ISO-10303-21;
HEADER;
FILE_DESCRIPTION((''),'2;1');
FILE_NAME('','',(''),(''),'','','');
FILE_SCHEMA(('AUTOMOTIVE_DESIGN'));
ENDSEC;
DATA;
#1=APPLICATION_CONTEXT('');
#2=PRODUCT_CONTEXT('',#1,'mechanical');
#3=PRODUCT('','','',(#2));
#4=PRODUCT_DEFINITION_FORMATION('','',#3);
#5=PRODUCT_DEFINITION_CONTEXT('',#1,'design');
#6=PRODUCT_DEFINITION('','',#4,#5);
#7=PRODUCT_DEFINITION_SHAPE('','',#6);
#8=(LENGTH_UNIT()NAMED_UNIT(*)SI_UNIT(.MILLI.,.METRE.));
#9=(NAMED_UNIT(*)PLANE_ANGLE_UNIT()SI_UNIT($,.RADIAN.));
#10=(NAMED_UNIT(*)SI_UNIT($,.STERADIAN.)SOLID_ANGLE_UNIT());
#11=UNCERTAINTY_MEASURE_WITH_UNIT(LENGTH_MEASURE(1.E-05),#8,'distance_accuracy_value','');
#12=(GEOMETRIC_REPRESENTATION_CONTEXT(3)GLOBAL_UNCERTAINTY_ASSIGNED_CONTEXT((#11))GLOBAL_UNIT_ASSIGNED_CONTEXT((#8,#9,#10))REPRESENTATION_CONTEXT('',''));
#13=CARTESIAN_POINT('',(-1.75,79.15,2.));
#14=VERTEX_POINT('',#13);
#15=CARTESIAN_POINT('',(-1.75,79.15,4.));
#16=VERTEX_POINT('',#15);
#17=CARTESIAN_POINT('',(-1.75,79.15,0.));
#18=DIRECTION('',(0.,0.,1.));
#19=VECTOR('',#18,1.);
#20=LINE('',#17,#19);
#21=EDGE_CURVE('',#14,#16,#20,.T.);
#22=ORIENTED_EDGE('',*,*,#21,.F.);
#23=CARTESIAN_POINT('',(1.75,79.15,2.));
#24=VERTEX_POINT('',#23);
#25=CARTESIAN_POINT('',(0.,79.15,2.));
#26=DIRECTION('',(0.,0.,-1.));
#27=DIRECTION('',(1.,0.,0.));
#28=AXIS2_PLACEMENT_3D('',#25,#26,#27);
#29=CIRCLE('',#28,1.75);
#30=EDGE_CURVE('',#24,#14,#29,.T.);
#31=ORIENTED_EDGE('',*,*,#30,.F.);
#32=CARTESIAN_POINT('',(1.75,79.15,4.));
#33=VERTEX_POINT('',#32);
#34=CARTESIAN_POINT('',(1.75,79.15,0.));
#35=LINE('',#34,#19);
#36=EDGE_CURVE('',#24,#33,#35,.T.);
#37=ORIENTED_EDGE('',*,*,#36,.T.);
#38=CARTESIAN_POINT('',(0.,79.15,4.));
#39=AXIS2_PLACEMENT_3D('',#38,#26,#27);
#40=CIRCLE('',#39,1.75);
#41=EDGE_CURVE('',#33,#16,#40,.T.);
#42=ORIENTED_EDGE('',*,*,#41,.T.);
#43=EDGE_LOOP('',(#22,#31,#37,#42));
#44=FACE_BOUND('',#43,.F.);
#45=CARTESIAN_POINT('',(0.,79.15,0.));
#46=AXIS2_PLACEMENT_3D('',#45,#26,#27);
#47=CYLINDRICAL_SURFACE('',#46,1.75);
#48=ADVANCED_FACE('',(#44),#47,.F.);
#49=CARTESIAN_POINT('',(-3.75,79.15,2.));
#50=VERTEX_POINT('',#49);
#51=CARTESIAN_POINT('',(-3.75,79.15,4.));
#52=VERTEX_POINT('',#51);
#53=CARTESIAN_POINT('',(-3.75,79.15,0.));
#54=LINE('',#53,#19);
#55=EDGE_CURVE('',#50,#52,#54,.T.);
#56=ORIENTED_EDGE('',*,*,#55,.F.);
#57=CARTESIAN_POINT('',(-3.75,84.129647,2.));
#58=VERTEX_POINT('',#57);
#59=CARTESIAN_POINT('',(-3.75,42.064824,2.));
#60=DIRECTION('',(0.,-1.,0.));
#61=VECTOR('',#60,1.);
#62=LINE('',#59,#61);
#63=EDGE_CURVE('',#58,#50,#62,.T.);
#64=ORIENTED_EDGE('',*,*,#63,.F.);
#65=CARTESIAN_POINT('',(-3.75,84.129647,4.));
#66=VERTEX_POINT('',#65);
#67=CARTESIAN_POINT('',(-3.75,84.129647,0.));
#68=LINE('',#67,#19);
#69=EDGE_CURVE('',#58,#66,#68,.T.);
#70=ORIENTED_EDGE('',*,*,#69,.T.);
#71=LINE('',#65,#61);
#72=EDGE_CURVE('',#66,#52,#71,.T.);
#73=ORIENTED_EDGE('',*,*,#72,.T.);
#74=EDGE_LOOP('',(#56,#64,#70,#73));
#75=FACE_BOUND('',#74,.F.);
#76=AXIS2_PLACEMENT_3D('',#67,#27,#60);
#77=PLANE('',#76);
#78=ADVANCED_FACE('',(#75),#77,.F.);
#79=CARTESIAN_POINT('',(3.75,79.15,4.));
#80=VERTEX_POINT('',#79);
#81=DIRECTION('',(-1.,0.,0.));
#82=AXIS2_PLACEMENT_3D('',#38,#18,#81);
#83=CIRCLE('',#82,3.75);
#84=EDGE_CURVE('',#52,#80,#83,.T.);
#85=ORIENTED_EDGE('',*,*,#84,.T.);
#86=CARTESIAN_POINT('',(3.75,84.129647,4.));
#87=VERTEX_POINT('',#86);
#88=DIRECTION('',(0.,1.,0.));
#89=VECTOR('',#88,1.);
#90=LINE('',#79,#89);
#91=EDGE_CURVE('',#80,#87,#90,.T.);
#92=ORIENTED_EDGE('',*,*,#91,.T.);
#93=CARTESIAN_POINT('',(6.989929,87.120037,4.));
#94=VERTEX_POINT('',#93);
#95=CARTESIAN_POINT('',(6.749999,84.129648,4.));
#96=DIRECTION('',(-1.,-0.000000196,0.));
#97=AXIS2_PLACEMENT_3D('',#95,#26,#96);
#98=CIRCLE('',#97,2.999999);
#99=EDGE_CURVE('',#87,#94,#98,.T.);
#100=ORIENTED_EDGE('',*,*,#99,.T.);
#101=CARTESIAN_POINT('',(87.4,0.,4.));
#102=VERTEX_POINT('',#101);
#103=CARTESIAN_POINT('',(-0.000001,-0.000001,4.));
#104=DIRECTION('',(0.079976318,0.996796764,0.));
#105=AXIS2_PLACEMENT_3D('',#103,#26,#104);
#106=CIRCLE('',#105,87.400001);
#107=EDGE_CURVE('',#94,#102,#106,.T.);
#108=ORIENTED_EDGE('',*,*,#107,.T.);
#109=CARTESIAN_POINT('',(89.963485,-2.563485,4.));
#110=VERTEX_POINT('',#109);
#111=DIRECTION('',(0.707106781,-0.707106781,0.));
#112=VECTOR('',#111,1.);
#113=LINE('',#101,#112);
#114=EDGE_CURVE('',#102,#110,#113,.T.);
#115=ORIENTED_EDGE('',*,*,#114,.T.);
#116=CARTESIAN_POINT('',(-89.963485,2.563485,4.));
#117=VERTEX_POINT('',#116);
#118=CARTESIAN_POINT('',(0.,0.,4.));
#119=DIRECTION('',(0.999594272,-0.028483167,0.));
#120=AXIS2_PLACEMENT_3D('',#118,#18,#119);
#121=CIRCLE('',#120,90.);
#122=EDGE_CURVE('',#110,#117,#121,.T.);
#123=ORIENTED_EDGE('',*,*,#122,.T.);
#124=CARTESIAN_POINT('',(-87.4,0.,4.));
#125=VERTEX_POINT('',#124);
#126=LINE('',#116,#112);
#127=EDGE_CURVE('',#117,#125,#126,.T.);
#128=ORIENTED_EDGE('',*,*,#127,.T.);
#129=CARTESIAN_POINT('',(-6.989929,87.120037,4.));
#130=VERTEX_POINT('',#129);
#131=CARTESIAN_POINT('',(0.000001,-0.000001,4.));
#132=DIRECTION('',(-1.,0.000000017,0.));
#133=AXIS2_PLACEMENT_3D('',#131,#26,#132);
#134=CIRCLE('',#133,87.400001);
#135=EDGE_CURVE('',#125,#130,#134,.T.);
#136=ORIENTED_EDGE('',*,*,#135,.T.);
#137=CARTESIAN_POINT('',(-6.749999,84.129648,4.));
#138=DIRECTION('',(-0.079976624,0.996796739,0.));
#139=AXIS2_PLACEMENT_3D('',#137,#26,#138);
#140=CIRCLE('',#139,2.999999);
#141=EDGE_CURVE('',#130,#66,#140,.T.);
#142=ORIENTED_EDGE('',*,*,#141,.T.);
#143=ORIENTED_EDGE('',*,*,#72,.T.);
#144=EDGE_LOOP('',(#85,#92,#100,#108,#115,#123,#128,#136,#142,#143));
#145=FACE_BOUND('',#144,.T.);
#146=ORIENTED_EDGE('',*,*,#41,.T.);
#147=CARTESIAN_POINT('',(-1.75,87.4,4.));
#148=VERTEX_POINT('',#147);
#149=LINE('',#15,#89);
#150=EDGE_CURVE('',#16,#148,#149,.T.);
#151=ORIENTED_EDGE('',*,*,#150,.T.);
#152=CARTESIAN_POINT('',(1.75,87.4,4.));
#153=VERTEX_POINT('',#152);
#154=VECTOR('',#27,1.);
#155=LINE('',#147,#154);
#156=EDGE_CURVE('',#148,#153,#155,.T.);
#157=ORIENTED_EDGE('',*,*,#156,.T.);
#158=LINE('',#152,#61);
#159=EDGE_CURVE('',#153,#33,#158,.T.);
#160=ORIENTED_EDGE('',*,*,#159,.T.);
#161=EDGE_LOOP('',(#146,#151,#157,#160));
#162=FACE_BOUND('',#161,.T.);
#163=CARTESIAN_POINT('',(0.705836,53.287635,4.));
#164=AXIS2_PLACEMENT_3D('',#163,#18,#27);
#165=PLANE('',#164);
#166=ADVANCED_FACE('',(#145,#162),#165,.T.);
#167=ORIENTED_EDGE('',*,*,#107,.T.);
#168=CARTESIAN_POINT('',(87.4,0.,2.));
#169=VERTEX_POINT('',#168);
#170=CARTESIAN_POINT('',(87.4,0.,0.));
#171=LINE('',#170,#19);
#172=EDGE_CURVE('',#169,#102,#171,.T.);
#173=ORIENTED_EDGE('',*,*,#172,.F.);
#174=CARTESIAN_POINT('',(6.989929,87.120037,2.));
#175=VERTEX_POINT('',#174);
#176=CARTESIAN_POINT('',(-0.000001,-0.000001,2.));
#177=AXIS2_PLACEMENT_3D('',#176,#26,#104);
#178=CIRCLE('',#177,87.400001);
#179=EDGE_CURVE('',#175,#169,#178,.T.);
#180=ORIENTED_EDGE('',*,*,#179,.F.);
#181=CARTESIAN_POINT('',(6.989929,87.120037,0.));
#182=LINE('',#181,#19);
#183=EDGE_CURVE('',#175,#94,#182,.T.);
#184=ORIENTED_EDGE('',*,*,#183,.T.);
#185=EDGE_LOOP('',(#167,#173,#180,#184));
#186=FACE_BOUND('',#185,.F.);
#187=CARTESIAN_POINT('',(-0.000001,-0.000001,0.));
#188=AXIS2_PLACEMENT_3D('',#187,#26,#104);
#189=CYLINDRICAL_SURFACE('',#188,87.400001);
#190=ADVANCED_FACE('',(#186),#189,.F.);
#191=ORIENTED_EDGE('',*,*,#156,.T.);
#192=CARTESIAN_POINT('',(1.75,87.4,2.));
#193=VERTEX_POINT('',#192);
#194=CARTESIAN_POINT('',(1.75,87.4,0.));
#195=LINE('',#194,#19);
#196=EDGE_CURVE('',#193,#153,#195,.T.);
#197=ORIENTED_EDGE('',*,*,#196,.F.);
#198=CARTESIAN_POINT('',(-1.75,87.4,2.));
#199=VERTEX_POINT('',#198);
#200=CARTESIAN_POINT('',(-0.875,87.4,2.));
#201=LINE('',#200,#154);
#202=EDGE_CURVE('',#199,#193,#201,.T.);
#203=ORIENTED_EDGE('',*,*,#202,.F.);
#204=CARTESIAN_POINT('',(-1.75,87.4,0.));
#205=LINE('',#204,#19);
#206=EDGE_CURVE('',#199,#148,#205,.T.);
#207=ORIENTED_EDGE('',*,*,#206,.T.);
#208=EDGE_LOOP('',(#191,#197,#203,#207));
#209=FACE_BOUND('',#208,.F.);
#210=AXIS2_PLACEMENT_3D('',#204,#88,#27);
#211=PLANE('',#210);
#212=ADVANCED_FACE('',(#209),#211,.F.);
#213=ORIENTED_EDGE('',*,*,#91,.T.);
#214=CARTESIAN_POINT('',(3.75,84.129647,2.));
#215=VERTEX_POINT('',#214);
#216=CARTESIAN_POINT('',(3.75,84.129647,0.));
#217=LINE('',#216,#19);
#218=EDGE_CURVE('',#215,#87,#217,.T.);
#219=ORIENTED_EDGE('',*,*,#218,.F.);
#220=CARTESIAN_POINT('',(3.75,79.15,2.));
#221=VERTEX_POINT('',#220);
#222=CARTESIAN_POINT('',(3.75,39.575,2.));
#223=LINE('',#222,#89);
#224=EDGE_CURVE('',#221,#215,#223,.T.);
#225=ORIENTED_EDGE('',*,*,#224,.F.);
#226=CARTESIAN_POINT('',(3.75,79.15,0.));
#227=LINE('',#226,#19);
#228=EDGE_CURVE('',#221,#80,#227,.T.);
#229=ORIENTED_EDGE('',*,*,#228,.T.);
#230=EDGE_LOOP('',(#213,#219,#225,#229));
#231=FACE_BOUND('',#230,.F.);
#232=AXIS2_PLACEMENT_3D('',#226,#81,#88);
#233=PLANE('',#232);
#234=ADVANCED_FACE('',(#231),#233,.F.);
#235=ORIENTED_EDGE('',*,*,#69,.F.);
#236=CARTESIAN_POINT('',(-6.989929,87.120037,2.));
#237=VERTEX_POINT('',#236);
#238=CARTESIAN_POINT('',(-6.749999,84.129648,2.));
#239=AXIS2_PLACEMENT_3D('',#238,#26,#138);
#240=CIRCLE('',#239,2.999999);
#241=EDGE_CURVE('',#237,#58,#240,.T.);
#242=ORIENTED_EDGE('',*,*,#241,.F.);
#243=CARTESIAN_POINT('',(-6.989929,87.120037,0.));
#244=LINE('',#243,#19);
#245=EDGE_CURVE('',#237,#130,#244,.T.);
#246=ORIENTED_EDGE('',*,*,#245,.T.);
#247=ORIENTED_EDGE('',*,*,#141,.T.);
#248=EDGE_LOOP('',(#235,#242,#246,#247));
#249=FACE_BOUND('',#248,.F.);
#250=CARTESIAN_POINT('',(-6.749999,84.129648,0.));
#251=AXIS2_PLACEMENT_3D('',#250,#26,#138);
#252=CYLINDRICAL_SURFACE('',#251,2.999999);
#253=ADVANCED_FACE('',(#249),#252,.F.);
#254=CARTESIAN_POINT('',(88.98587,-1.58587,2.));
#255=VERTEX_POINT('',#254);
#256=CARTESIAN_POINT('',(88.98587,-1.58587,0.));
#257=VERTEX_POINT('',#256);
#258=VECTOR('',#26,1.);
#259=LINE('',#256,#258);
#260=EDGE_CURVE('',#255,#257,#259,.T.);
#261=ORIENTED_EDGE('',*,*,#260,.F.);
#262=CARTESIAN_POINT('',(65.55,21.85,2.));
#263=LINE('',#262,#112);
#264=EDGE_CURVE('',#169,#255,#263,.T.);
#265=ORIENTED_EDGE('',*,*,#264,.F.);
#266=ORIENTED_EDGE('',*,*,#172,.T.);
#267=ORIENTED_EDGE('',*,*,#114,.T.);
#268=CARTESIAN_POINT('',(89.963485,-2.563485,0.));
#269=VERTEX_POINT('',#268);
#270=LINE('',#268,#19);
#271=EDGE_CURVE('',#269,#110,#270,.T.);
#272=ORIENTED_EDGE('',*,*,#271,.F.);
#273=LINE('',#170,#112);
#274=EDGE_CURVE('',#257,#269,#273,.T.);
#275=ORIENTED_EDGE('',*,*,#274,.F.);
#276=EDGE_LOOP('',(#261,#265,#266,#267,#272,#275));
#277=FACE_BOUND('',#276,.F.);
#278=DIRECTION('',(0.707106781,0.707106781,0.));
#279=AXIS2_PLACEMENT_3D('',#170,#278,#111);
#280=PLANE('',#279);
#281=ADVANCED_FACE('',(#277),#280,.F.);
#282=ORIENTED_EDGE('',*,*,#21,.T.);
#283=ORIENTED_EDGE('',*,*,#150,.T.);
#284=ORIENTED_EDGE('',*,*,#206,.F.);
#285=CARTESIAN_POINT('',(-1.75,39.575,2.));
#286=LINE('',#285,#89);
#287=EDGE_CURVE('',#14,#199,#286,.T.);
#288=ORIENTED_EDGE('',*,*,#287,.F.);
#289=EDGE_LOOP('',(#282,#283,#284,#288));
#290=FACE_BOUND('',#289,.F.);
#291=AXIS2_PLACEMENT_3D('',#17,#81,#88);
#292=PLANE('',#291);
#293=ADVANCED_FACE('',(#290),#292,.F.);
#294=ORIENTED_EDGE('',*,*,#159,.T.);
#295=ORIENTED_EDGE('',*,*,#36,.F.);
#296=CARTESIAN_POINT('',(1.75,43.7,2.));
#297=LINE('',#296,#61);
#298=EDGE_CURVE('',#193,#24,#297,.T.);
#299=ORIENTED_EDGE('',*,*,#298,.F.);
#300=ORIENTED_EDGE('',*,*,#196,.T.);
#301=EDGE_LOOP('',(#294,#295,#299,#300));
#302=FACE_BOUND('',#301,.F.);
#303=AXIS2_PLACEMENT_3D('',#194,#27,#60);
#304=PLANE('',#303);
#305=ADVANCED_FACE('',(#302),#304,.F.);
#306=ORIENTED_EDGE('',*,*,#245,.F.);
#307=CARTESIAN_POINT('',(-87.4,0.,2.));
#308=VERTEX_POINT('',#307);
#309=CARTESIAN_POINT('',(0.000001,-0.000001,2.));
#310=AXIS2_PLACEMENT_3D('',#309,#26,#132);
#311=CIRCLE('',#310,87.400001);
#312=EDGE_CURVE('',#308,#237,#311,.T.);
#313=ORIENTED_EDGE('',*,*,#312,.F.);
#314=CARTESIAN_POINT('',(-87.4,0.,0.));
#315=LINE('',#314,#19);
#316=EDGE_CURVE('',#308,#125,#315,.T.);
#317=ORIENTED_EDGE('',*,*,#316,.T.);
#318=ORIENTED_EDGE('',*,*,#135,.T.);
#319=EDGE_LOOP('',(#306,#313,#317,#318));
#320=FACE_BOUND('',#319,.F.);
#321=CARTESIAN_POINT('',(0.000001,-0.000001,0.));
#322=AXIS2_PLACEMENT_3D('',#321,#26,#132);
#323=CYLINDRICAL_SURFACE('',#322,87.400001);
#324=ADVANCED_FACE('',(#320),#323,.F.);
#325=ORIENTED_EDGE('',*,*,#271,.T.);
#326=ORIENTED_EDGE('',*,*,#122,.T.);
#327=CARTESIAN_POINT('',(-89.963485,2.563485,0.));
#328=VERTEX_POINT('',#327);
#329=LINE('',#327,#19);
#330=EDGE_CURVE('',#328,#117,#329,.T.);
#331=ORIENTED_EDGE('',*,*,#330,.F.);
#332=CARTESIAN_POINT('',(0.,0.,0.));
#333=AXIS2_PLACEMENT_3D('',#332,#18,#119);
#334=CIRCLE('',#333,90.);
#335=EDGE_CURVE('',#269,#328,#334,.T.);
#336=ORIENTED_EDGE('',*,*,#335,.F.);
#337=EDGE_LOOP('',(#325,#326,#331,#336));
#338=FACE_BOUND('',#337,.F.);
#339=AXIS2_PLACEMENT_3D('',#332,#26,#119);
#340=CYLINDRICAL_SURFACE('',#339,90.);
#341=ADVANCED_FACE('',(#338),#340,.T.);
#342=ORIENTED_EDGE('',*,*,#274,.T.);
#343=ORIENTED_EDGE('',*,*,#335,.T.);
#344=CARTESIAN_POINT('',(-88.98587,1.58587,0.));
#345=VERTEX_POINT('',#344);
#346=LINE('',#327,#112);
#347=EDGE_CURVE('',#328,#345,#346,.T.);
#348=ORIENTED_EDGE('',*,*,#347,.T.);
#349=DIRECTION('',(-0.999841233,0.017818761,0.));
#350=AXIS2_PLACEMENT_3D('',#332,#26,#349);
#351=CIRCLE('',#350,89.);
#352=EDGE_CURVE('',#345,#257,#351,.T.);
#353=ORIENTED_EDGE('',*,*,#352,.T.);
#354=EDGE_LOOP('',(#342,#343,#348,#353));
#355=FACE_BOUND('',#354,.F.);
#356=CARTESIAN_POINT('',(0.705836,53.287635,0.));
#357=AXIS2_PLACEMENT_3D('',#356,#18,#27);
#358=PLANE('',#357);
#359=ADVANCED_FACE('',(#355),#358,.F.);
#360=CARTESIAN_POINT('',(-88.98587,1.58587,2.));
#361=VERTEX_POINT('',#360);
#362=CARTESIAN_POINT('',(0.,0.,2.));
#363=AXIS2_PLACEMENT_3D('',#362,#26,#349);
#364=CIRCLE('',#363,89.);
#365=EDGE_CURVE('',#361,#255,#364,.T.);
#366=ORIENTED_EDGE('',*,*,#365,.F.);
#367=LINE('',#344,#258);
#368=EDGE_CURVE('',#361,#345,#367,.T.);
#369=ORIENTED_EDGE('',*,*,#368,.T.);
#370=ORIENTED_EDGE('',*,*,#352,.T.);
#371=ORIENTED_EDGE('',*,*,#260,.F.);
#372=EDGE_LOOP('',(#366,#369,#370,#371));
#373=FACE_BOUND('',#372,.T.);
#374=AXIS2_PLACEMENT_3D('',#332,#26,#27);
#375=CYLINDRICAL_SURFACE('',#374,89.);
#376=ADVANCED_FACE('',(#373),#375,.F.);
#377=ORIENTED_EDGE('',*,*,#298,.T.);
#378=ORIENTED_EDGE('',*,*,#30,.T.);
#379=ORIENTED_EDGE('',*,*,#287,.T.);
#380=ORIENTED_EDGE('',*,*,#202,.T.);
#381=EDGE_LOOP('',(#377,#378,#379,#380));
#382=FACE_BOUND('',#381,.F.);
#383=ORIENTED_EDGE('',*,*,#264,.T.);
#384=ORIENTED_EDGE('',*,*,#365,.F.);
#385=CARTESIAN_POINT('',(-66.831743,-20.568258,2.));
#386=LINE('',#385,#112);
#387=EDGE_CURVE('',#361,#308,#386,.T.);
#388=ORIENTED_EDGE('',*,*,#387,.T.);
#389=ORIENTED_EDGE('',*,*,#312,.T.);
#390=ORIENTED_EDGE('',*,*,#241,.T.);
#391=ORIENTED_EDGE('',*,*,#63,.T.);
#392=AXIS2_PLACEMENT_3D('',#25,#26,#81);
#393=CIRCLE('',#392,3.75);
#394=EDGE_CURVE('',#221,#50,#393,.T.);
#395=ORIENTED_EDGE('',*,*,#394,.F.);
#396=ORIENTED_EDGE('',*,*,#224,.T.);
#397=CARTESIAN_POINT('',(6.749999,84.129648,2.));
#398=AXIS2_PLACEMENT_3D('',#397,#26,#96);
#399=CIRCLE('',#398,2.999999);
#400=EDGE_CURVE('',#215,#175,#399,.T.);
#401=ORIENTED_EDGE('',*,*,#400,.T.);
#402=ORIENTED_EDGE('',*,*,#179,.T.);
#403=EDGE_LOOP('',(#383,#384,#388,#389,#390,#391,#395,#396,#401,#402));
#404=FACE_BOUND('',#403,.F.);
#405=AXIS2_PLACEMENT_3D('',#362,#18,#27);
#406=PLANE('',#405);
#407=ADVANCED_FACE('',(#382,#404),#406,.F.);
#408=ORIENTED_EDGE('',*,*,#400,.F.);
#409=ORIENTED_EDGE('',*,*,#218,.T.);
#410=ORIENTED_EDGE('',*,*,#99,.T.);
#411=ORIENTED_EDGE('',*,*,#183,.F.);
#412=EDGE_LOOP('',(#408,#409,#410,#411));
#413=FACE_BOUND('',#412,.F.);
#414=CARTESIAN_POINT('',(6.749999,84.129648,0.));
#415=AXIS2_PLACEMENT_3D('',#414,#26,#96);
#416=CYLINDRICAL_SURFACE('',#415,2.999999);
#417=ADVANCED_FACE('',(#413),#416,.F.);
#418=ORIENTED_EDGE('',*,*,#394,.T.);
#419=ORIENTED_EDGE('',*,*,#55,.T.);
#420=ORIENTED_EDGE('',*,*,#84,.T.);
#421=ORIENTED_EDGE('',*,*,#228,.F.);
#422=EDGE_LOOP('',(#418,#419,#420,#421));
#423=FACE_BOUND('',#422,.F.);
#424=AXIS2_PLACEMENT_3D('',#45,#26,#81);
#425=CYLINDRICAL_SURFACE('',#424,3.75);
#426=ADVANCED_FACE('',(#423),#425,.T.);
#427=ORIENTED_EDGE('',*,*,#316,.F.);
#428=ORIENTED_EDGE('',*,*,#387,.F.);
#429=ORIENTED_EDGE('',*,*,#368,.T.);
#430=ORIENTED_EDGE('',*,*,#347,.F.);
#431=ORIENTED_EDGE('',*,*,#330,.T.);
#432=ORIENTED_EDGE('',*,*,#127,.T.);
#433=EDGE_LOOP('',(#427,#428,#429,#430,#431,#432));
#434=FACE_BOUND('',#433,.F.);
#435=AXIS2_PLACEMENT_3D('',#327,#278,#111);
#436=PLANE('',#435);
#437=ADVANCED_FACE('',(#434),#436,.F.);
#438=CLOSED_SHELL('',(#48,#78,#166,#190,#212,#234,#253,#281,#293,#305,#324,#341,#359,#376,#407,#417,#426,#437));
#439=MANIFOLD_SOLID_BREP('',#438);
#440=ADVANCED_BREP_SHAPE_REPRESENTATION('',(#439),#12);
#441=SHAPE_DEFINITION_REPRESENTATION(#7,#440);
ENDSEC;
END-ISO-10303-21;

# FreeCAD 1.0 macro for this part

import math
import FreeCAD as App
import Part
import Sketcher
from FreeCAD import Vector
Q = App.Units.Quantity

doc = App.newDocument("Part")
body = doc.addObject("PartDesign::Body", "Body")

# Sketch on XY plane
sketch1 = body.newObject("Sketcher::SketchObject", "Sketch")
sketch1.AttachmentSupport = (doc.getObject("XY_Plane"), [""])
sketch1.MapMode = "FlatFace"
sketch1.addGeometry([
    Part.LineSegment(Vector(87.4, 0, 0), Vector(90, -2.6, 0)),  # 0
    Part.ArcOfCircle(Part.Circle(Vector(0, 0, 0), Vector(0, 0, 1), 90), math.radians(-2), math.radians(178)),  # 1
    Part.LineSegment(Vector(-90, 2.6, 0), Vector(-87.4, 0, 0)),  # 2
    Part.ArcOfCircle(Part.Circle(Vector(0, 0, 0), Vector(0, 0, 1), 87.4), math.radians(95), math.radians(180)),  # 3
    Part.ArcOfCircle(Part.Circle(Vector(-6.7, 84.1, 0), Vector(0, 0, 1), 3), math.radians(0), math.radians(95)),  # 4
    Part.LineSegment(Vector(-3.8, 84.1, 0), Vector(-3.8, 79.2, 0)),  # 5
    Part.ArcOfCircle(Part.Circle(Vector(0, 79.2, 0), Vector(0, 0, 1), 3.8), math.radians(180), math.radians(360)),  # 6
    Part.LineSegment(Vector(3.8, 79.2, 0), Vector(3.8, 84.1, 0)),  # 7
    Part.ArcOfCircle(Part.Circle(Vector(6.7, 84.1, 0), Vector(0, 0, 1), 3), math.radians(85), math.radians(180)),  # 8
    Part.ArcOfCircle(Part.Circle(Vector(0, 0, 0), Vector(0, 0, 1), 87.4), math.radians(0), math.radians(85)),  # 9
    Part.LineSegment(Vector(1.8, 87.4, 0), Vector(1.8, 79.2, 0)),  # 10
    Part.ArcOfCircle(Part.Circle(Vector(0, 79.2, 0), Vector(0, 0, 1), 1.8), math.radians(180), math.radians(360)),  # 11
    Part.LineSegment(Vector(-1.8, 79.2, 0), Vector(-1.8, 87.4, 0)),  # 12
    Part.LineSegment(Vector(-1.8, 87.4, 0), Vector(1.8, 87.4, 0)),  # 13
], False)
sketch1.addConstraint([
    Sketcher.Constraint("Coincident", 0, 2, 1, 1),
    Sketcher.Constraint("Coincident", 1, 2, 2, 1),
    Sketcher.Constraint("Coincident", 2, 2, 3, 2),
    Sketcher.Constraint("Tangent", 3, 1, 4, 2),
    Sketcher.Constraint("Tangent", 4, 1, 5, 1),
    Sketcher.Constraint("Tangent", 5, 2, 6, 1),
    Sketcher.Constraint("Tangent", 6, 2, 7, 1),
    Sketcher.Constraint("Tangent", 7, 2, 8, 2),
    Sketcher.Constraint("Tangent", 8, 1, 9, 2),
    Sketcher.Constraint("Coincident", 9, 1, 0, 1),
    Sketcher.Constraint("Tangent", 10, 2, 11, 2),
    Sketcher.Constraint("Tangent", 11, 1, 12, 1),
    Sketcher.Constraint("Coincident", 12, 2, 13, 1),
    Sketcher.Constraint("Coincident", 13, 2, 10, 1),
    Sketcher.Constraint("Vertical", 5),
    Sketcher.Constraint("Vertical", 7),
    Sketcher.Constraint("Vertical", 10),
    Sketcher.Constraint("Vertical", 12),
    Sketcher.Constraint("Horizontal", 13),
    Sketcher.Constraint("Coincident", 1, 3, -1, 1),
    Sketcher.Constraint("Coincident", 3, 3, -1, 1),
    Sketcher.Constraint("Coincident", 9, 3, -1, 1),
    Sketcher.Constraint("Coincident", 11, 3, 6, 3),
    Sketcher.Constraint("Equal", 4, 8),
    Sketcher.Constraint("Equal", 3, 9),
    Sketcher.Constraint("PointOnObject", 6, 3, -2),
    Sketcher.Constraint("PointOnObject", 2, 2, -1),
    Sketcher.Constraint("PointOnObject", 9, 1, -1),
    Sketcher.Constraint("Parallel", 0, 2),
    Sketcher.Constraint("Radius", 1, 90.0),
    Sketcher.Constraint("Radius", 4, 2.999999),
    Sketcher.Constraint("Radius", 3, 87.400001),
    Sketcher.Constraint("Angle", 0, Q("-45 deg")),
    Sketcher.Constraint("Radius", 6, 3.75),
    Sketcher.Constraint("Radius", 11, 1.75),
    Sketcher.Constraint("DistanceY", 10, 2, 10, 1, 8.25),
    Sketcher.Constraint("DistanceY", -1, 1, 12, 2, 87.4),
])
pad1 = body.newObject("PartDesign::Pad", "Pad")
pad1.Profile = sketch1
pad1.Length = 4

# Sketch on XY plane
sketch2 = body.newObject("Sketcher::SketchObject", "Sketch001")
sketch2.AttachmentSupport = (doc.getObject("XY_Plane"), [""])
sketch2.MapMode = "FlatFace"
sketch2.addGeometry(Part.Circle(Vector(0, 0, 0), Vector(0, 0, 1), 89), False)
sketch2.addConstraint([
    Sketcher.Constraint("Coincident", 0, 3, -1, 1),
    Sketcher.Constraint("Diameter", 0, 178.0),
])
pocket1 = body.newObject("PartDesign::Pocket", "Pocket")
pocket1.Profile = sketch2
pocket1.Length = 2
pocket1.Reversed = True

doc.recompute()
